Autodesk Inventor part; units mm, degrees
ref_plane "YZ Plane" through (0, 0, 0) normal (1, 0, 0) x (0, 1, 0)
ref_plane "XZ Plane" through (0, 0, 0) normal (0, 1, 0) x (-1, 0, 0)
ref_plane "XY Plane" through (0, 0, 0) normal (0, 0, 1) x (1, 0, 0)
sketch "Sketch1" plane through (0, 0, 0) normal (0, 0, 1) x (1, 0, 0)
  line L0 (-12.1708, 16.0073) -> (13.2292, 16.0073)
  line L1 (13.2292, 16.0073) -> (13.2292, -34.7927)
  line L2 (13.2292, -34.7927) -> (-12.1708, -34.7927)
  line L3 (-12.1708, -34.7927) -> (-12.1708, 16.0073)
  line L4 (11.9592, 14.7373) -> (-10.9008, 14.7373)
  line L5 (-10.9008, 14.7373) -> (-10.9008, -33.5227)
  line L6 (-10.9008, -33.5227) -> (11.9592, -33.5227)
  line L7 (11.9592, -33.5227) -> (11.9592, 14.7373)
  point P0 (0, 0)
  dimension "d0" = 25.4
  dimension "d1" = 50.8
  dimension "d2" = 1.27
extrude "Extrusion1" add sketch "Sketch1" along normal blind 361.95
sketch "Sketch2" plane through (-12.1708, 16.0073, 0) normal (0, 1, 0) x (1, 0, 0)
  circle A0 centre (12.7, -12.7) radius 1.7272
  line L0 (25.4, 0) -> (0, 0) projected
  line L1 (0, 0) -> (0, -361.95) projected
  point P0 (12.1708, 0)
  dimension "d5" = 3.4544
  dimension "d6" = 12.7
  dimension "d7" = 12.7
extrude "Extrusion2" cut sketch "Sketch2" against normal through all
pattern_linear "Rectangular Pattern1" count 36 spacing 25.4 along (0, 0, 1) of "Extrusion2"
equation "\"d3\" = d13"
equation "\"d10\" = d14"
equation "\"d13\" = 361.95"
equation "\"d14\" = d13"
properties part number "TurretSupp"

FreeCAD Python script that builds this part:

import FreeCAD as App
import Part
import Sketcher
from FreeCAD import Vector
Q = App.Units.Quantity


def add_polygon(sketch, points):
    """Adds a closed chain of lines whose ends are joined by coincident constraints."""
    first, n = sketch.GeometryCount, len(points)
    for a, b in zip(points, points[1:] + points[:1]):
        sketch.addGeometry(Part.LineSegment(App.Vector(*a, 0), App.Vector(*b, 0)), False)
    for i in range(n):
        sketch.addConstraint(Sketcher.Constraint("Coincident", first + i, 2, first + (i + 1) % n, 1))

doc = App.newDocument("Part")
params = doc.addObject("Spreadsheet::Sheet", "Params")
for row, (alias, value) in enumerate([
    ("sketch1_width", "1 in"),
    ("sketch1_height", "2 in"),
    ("pad1_length", "14.25 in"),
    ("sketch2_diameter", "0.136 in"),
    ("linearpattern_pitch", "1 in"),
], start=1):
    params.set(f"A{row}", alias)
    params.set(f"B{row}", "=" + value)
    params.setAlias(f"B{row}", alias)

body = doc.addObject("PartDesign::Body", "Body")

# Sketch on XY plane
sketch1 = doc.addObject("Sketcher::SketchObject", "Sketch")
body.addObject(sketch1)
sketch1.AttachmentSupport = (doc.XY_Plane, [""])
sketch1.MapMode = "FlatFace"
add_polygon(sketch1, [(13, 16), (-12, 16), (-12, -35), (13, -35)])  # lines 0-3
add_polygon(sketch1, [(-11, 15), (12, 15), (12, -34), (-11, -34)])  # lines 4-7
sketch1.addConstraint(Sketcher.Constraint("Horizontal", 0))
sketch1.addConstraint(Sketcher.Constraint("Vertical", 1))
sketch1.addConstraint(Sketcher.Constraint("Horizontal", 2))
sketch1.addConstraint(Sketcher.Constraint("Vertical", 3))
sketch1.addConstraint(Sketcher.Constraint("Horizontal", 4))
sketch1.addConstraint(Sketcher.Constraint("Vertical", 5))
sketch1.addConstraint(Sketcher.Constraint("Horizontal", 6))
sketch1.addConstraint(Sketcher.Constraint("Vertical", 7))
sketch1.addConstraint(Sketcher.Constraint("DistanceX", 0, 2, 0, 1, Q("1 in")))
sketch1.addConstraint(Sketcher.Constraint("DistanceY", 1, 2, 1, 1, Q("2 in")))
sketch1.addConstraint(Sketcher.Constraint("DistanceX", 4, 2, 3, 2, Q("0.05 in")))
sketch1.addConstraint(Sketcher.Constraint("DistanceY", 4, 2, 3, 2, Q("0.05 in")))
sketch1.addConstraint(Sketcher.Constraint("DistanceY", 2, 2, 5, 2, Q("0.05 in")))
sketch1.addConstraint(Sketcher.Constraint("DistanceX", 1, 2, 6, 2, Q("0.05 in")))
sketch1.addConstraint(Sketcher.Constraint("DistanceY", -1, 1, 0, 2, Q("0.6302 in")))
sketch1.addConstraint(Sketcher.Constraint("DistanceX", 0, 2, -1, 1, Q("12.1708 mm")))
sketch1.setExpression("Constraints[16]", "Params.sketch1_width")
sketch1.setExpression("Constraints[17]", "Params.sketch1_height")
pad1 = doc.addObject("PartDesign::Pad", "Pad")
body.addObject(pad1)
pad1.Profile = sketch1
pad1.setExpression("Length", "Params.pad1_length")

# Sketch on XZ plane
sketch2 = doc.addObject("Sketcher::SketchObject", "Sketch001")
body.addObject(sketch2)
sketch2.AttachmentSupport = (doc.XZ_Plane, [""])
sketch2.MapMode = "FlatFace"
sketch2.AttachmentOffset = App.Placement(Vector(0, 0, -0.6302087 * 25.4), App.Rotation())
sketch2.addGeometry(Part.Circle(Vector(0.5, 12.7, 0), Vector(0, 0, 1), 1.7), False)
sketch2.addConstraint(Sketcher.Constraint("Diameter", 0, Q("0.136 in")))
sketch2.addConstraint(Sketcher.Constraint("DistanceY", -1, 1, 0, 3, Q("0.5 in")))
sketch2.addConstraint(Sketcher.Constraint("DistanceX", -1, 1, 0, 3, Q("0.5292 mm")))
sketch2.setExpression("Constraints[0]", "Params.sketch2_diameter")
pocket1 = doc.addObject("PartDesign::Pocket", "Pocket")
body.addObject(pocket1)
pocket1.Profile = sketch2
pocket1.Type = "ThroughAll"
pocket1.Reversed = True
doc.recompute()

linearpattern = doc.addObject("PartDesign::LinearPattern", "LinearPattern")
body.addObject(linearpattern)
linearpattern.Originals = [pocket1]
linearpattern.Direction = (doc.Z_Axis, [""])
linearpattern.Mode = "offset"
linearpattern.setExpression("Offset", "Params.linearpattern_pitch")
linearpattern.Occurrences = 36
body.Tip = linearpattern

doc.recompute()
